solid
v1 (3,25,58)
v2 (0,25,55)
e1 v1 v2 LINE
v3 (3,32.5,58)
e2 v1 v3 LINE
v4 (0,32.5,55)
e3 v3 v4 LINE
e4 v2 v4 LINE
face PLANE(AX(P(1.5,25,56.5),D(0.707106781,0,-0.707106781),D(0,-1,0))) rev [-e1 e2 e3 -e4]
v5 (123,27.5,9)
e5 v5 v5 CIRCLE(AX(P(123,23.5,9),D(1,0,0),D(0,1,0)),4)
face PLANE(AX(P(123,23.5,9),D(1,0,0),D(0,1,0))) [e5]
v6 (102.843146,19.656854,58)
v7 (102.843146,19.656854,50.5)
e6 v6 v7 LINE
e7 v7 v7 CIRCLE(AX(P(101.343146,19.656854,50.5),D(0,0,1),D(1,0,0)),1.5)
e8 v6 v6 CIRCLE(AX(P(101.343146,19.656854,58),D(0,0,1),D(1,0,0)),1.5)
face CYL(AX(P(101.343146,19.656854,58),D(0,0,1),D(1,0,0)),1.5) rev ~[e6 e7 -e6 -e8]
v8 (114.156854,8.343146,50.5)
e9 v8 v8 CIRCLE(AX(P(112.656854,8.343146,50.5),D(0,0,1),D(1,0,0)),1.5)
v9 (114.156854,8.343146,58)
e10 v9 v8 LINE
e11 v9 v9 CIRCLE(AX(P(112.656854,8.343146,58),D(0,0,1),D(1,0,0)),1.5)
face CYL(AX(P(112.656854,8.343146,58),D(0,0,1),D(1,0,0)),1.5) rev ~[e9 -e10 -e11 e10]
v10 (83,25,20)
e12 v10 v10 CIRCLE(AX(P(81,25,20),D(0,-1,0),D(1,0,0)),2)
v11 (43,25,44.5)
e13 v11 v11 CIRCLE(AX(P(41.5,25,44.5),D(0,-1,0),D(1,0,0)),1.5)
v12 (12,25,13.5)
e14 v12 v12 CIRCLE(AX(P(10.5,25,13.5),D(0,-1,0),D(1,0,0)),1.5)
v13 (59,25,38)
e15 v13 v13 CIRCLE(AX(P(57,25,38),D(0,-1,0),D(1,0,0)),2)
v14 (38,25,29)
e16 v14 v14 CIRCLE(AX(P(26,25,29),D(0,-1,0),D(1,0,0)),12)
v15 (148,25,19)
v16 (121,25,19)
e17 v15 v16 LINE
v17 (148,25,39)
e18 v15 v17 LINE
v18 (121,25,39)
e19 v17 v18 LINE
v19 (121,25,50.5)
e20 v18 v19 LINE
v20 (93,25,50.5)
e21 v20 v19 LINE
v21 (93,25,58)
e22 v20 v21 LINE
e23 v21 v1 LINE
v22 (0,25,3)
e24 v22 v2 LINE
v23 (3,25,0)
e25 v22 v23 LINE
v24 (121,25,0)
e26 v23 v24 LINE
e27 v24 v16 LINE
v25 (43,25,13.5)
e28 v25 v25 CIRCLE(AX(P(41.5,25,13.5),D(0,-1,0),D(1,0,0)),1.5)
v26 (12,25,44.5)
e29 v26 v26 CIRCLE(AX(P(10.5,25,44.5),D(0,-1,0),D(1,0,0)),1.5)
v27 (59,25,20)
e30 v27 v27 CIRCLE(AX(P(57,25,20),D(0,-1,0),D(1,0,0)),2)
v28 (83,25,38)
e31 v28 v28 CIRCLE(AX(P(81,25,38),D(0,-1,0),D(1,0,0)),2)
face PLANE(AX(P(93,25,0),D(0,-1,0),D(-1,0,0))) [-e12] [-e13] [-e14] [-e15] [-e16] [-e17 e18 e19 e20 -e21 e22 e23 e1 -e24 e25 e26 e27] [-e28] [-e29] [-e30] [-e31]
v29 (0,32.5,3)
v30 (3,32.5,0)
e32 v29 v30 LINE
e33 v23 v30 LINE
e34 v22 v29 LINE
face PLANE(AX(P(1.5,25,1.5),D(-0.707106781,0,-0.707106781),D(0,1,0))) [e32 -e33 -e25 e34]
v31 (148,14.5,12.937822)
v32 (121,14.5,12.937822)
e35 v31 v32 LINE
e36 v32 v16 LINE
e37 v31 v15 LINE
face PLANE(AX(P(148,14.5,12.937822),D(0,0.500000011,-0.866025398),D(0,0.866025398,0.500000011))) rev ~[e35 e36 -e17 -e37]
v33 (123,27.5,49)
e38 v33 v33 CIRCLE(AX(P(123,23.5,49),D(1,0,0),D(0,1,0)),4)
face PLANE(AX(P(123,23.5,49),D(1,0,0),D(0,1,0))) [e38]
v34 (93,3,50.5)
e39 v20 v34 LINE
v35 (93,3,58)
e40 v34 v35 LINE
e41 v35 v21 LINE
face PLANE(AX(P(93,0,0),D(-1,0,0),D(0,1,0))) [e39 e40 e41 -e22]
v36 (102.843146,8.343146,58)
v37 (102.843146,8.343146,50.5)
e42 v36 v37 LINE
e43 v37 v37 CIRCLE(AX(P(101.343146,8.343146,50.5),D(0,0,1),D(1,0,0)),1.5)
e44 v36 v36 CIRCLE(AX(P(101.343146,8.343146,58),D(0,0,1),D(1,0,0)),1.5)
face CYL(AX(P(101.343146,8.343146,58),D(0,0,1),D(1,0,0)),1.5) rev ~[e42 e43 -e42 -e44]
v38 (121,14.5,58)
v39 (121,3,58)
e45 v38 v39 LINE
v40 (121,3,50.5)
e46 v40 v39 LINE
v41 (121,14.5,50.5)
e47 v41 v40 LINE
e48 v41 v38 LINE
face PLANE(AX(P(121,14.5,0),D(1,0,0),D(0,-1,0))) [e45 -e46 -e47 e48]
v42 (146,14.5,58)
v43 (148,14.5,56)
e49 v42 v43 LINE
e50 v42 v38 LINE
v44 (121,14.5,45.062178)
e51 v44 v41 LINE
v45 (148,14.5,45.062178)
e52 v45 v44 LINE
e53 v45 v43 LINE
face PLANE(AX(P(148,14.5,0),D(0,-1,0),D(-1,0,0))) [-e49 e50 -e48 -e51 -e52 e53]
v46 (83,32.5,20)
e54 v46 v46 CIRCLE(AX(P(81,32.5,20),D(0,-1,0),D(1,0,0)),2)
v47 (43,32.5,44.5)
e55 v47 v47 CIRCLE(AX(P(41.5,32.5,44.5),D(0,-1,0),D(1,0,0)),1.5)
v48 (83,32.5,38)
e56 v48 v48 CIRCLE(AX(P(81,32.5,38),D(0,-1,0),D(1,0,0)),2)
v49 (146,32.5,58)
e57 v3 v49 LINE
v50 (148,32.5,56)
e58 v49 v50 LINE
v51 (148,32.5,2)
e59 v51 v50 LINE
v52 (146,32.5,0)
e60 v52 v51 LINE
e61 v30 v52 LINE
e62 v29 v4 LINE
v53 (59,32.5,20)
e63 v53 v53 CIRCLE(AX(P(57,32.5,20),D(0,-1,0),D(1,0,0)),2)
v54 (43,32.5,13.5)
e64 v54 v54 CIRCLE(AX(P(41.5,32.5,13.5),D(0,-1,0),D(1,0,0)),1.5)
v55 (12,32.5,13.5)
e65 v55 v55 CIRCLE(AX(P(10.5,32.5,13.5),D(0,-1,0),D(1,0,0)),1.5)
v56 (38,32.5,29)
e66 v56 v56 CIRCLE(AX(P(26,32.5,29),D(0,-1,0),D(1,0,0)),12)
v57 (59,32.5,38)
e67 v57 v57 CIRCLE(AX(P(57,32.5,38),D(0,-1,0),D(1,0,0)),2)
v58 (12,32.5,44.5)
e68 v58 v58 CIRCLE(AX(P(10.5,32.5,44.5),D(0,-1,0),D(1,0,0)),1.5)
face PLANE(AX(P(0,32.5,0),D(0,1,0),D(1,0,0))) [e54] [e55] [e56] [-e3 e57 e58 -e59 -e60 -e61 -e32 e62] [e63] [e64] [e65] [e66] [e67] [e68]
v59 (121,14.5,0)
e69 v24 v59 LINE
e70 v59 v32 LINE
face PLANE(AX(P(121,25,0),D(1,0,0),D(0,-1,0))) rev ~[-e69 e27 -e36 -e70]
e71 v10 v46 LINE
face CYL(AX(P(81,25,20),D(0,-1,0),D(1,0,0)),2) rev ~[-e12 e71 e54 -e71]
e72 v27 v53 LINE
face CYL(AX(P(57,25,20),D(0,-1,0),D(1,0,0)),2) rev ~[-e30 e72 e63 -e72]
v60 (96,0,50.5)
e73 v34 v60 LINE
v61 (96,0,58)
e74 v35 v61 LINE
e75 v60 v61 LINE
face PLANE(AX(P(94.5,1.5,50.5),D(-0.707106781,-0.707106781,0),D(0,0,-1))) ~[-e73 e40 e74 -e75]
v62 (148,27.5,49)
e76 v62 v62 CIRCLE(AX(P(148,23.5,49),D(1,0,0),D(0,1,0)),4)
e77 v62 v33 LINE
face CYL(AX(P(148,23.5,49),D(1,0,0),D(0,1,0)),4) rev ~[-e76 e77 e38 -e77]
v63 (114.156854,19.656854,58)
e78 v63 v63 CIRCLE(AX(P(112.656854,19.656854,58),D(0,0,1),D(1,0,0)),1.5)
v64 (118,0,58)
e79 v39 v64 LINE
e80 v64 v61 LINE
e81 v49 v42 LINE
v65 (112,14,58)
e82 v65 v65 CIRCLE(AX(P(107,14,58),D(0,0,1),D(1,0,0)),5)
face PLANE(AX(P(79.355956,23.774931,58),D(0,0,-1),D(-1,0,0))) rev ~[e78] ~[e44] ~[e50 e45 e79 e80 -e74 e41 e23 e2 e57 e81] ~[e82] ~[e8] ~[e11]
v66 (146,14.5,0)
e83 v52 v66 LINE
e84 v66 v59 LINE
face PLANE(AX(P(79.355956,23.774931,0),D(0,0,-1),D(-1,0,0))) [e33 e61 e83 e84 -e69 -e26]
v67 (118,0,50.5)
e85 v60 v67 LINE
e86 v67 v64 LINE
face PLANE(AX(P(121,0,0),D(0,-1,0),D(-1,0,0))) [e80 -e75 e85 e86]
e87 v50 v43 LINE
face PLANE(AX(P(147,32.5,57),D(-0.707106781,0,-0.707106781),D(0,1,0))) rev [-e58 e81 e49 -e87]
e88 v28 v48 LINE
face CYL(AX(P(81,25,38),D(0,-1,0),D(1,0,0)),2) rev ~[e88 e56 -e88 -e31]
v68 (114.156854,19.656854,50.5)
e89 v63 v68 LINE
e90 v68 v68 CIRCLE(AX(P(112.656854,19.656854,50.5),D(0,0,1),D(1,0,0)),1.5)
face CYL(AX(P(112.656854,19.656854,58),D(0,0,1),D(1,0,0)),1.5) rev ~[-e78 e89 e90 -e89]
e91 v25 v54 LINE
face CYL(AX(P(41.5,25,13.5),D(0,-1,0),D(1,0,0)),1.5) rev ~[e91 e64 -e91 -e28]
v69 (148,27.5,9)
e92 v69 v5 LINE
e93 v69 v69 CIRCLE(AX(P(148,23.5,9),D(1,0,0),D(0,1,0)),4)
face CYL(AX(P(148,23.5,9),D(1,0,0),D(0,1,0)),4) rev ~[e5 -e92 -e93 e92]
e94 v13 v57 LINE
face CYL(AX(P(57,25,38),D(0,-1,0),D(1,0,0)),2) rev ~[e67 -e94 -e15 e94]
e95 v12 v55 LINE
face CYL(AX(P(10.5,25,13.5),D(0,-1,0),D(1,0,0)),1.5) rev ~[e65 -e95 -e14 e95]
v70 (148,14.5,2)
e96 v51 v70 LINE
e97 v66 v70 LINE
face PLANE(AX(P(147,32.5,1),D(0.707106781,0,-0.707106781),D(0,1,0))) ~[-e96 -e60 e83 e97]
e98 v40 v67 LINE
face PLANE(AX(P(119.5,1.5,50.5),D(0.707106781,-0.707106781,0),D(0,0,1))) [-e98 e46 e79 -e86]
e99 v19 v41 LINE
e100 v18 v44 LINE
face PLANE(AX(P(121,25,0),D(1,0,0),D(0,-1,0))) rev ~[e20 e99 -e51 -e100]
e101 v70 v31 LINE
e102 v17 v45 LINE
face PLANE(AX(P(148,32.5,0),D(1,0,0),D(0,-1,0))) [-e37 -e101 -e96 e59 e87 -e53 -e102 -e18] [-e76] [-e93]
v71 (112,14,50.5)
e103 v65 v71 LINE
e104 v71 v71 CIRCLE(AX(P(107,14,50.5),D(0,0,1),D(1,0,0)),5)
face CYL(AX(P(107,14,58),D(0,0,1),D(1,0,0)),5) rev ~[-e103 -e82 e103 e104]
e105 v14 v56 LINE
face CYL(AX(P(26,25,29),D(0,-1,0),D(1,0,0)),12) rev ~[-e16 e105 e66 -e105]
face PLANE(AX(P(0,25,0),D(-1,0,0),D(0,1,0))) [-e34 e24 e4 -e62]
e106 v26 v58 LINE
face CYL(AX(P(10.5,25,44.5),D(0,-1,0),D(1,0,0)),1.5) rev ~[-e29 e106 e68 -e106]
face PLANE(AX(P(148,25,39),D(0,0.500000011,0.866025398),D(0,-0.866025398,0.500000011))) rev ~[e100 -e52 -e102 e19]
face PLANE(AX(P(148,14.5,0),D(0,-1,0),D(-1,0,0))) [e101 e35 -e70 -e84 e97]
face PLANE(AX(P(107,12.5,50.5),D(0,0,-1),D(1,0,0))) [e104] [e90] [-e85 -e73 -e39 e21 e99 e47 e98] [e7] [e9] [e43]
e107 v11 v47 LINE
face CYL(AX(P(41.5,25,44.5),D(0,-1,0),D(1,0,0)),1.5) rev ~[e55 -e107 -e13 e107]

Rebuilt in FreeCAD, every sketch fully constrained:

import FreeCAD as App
import Part
import Sketcher
Q = App.Units.Quantity


def edges_at(feature, points):
    """Names of the edges that pass closest to the given points."""
    edges = feature.Shape.Edges
    near = lambda p: min(range(len(edges)), key=lambda i: edges[i].distToShape(Part.Vertex(*p))[0])
    return sorted({f"Edge{near(p) + 1}" for p in points})


def add_polygon(sketch, points):
    """Adds a closed chain of lines whose ends are joined by coincident constraints."""
    first, n = sketch.GeometryCount, len(points)
    for a, b in zip(points, points[1:] + points[:1]):
        sketch.addGeometry(Part.LineSegment(App.Vector(*a, 0), App.Vector(*b, 0)), False)
    for i in range(n):
        sketch.addConstraint(Sketcher.Constraint("Coincident", first + i, 2, first + (i + 1) % n, 1))

doc = App.newDocument("Part")
body = doc.addObject("PartDesign::Body", "Body")

# Sketch on XY plane
sketch1 = body.newObject("Sketcher::SketchObject", "Sketch")
sketch1.AttachmentSupport = (doc.getObject("XY_Plane"), [""])
sketch1.MapMode = "FlatFace"
add_polygon(sketch1, [(0, 32), (0, 25), (93, 25), (93, 0), (121, 0), (121, 14), (148, 14), (148, 32)])  # lines 0-7
sketch1.addConstraint(Sketcher.Constraint("Vertical", 0))
sketch1.addConstraint(Sketcher.Constraint("Horizontal", 1))
sketch1.addConstraint(Sketcher.Constraint("Vertical", 2))
sketch1.addConstraint(Sketcher.Constraint("Horizontal", 3))
sketch1.addConstraint(Sketcher.Constraint("Vertical", 4))
sketch1.addConstraint(Sketcher.Constraint("Horizontal", 5))
sketch1.addConstraint(Sketcher.Constraint("Vertical", 6))
sketch1.addConstraint(Sketcher.Constraint("Horizontal", 7))
sketch1.addConstraint(Sketcher.Constraint("PointOnObject", 0, 2, -2))
sketch1.addConstraint(Sketcher.Constraint("PointOnObject", 2, 2, -1))
sketch1.addConstraint(Sketcher.Constraint("DistanceX", 1, 1, 1, 2, Q("93 mm")))
sketch1.addConstraint(Sketcher.Constraint("DistanceX", 3, 1, 3, 2, Q("28 mm")))
sketch1.addConstraint(Sketcher.Constraint("DistanceX", 5, 1, 5, 2, Q("27 mm")))
sketch1.addConstraint(Sketcher.Constraint("DistanceY", 2, 2, 2, 1, Q("25 mm")))
sketch1.addConstraint(Sketcher.Constraint("DistanceY", 6, 1, 6, 2, Q("18 mm")))
sketch1.addConstraint(Sketcher.Constraint("DistanceY", 0, 2, 0, 1, Q("7.5 mm")))
pad1 = body.newObject("PartDesign::Pad", "Pad")
pad1.Profile = sketch1
pad1.Length = 58

# Sketch on YZ plane
sketch2 = body.newObject("Sketcher::SketchObject", "Sketch001")
sketch2.AttachmentSupport = (doc.getObject("YZ_Plane"), [""])
sketch2.MapMode = "FlatFace"
sketch2.AttachmentOffset = App.Placement(App.Vector(0, 0, 148), App.Rotation())
sketch2.addGeometry(Part.Circle(App.Vector(23.5, 49, 0), App.Vector(0, 0, 1), 4), False)
sketch2.addGeometry(Part.Circle(App.Vector(23.5, 9, 0), App.Vector(0, 0, 1), 4), False)
sketch2.addConstraint(Sketcher.Constraint("Equal", 0, 1))
sketch2.addConstraint(Sketcher.Constraint("Vertical", 0, 3, 1, 3))
sketch2.addConstraint(Sketcher.Constraint("Diameter", 0, Q("8 mm")))
sketch2.addConstraint(Sketcher.Constraint("DistanceY", -1, 1, 0, 3, Q("49 mm")))
sketch2.addConstraint(Sketcher.Constraint("DistanceY", -1, 1, 1, 3, Q("9 mm")))
sketch2.addConstraint(Sketcher.Constraint("DistanceX", -1, 1, 0, 3, Q("23.5 mm")))
pocket1 = body.newObject("PartDesign::Pocket", "Pocket")
pocket1.Profile = sketch2
pocket1.Length = 25

# Sketch on XY plane
sketch3 = body.newObject("Sketcher::SketchObject", "Sketch002")
sketch3.AttachmentSupport = (doc.getObject("XY_Plane"), [""])
sketch3.MapMode = "FlatFace"
add_polygon(sketch3, [(93, 0), (93, 25), (121, 25), (121, 0)])  # lines 0-3
sketch3.addConstraint(Sketcher.Constraint("Vertical", 0))
sketch3.addConstraint(Sketcher.Constraint("Horizontal", 1))
sketch3.addConstraint(Sketcher.Constraint("Vertical", 2))
sketch3.addConstraint(Sketcher.Constraint("Horizontal", 3))
sketch3.addConstraint(Sketcher.Constraint("PointOnObject", 2, 2, -1))
sketch3.addConstraint(Sketcher.Constraint("DistanceX", 1, 1, 1, 2, Q("28 mm")))
sketch3.addConstraint(Sketcher.Constraint("DistanceY", 0, 1, 0, 2, Q("25 mm")))
sketch3.addConstraint(Sketcher.Constraint("DistanceX", -1, 1, 0, 2, Q("93 mm")))
pocket2 = body.newObject("PartDesign::Pocket", "Pocket001")
pocket2.Profile = sketch3
pocket2.Length = 50.5
pocket2.Reversed = True

# Sketch on YZ plane
sketch4 = body.newObject("Sketcher::SketchObject", "Sketch003")
sketch4.AttachmentSupport = (doc.getObject("YZ_Plane"), [""])
sketch4.MapMode = "FlatFace"
sketch4.AttachmentOffset = App.Placement(App.Vector(0, 0, 148), App.Rotation())
add_polygon(sketch4, [(14, 45), (14, 13), (25, 19), (25, 39)])  # lines 0-3
sketch4.addConstraint(Sketcher.Constraint("Vertical", 0))
sketch4.addConstraint(Sketcher.Constraint("Vertical", 2))
sketch4.addConstraint(Sketcher.Constraint("Equal", 1, 3))
sketch4.addConstraint(Sketcher.Constraint("DistanceY", 2, 1, 2, 2, Q("20 mm")))
sketch4.addConstraint(Sketcher.Constraint("Angle", 1, Q("30.000001 deg")))
sketch4.addConstraint(Sketcher.Constraint("DistanceX", -1, 1, 1, 2, Q("25 mm")))
sketch4.addConstraint(Sketcher.Constraint("DistanceY", -1, 1, 1, 2, Q("19 mm")))
sketch4.addConstraint(Sketcher.Constraint("DistanceX", -1, 1, 0, 2, Q("14.5 mm")))
pocket3 = body.newObject("PartDesign::Pocket", "Pocket002")
pocket3.Profile = sketch4
pocket3.Length = 27

# Sketch on XY plane
sketch5 = body.newObject("Sketcher::SketchObject", "Sketch004")
sketch5.AttachmentSupport = (doc.getObject("XY_Plane"), [""])
sketch5.MapMode = "FlatFace"
sketch5.AttachmentOffset = App.Placement(App.Vector(0, 0, 58), App.Rotation())
sketch5.addGeometry(Part.Circle(App.Vector(107, 14, 0), App.Vector(0, 0, 1), 5), False)
sketch5.addGeometry(Part.Circle(App.Vector(101.3, 19.7, 0), App.Vector(0, 0, 1), 1.5), False)
sketch5.addGeometry(Part.Circle(App.Vector(112.7, 19.7, 0), App.Vector(0, 0, 1), 1.5), False)
sketch5.addGeometry(Part.Circle(App.Vector(112.7, 8.3, 0), App.Vector(0, 0, 1), 1.5), False)
sketch5.addGeometry(Part.Circle(App.Vector(101.3, 8.3, 0), App.Vector(0, 0, 1), 1.5), False)
sketch5.addConstraint(Sketcher.Constraint("Equal", 1, 2))
sketch5.addConstraint(Sketcher.Constraint("Equal", 2, 3))
sketch5.addConstraint(Sketcher.Constraint("Equal", 3, 4))
sketch5.addConstraint(Sketcher.Constraint("Horizontal", 1, 3, 2, 3))
sketch5.addConstraint(Sketcher.Constraint("Horizontal", 3, 3, 4, 3))
sketch5.addConstraint(Sketcher.Constraint("Vertical", 2, 3, 3, 3))
sketch5.addConstraint(Sketcher.Constraint("Vertical", 1, 3, 4, 3))
sketch5.addConstraint(Sketcher.Constraint("Diameter", 0, Q("10 mm")))
sketch5.addConstraint(Sketcher.Constraint("Diameter", 1, Q("3 mm")))
sketch5.addConstraint(Sketcher.Constraint("DistanceX", -1, 1, 0, 3, Q("107 mm")))
sketch5.addConstraint(Sketcher.Constraint("DistanceY", -1, 1, 0, 3, Q("14 mm")))
sketch5.addConstraint(Sketcher.Constraint("DistanceX", -1, 1, 1, 3, Q("101.343146 mm")))
sketch5.addConstraint(Sketcher.Constraint("DistanceY", -1, 1, 1, 3, Q("19.656854 mm")))
sketch5.addConstraint(Sketcher.Constraint("DistanceX", -1, 1, 2, 3, Q("112.656854 mm")))
sketch5.addConstraint(Sketcher.Constraint("DistanceY", -1, 1, 3, 3, Q("8.343146 mm")))
pocket4 = body.newObject("PartDesign::Pocket", "Pocket003")
pocket4.Profile = sketch5
pocket4.Type = "ThroughAll"

# Sketch on XZ plane
sketch6 = body.newObject("Sketcher::SketchObject", "Sketch005")
sketch6.AttachmentSupport = (doc.getObject("XZ_Plane"), [""])
sketch6.MapMode = "FlatFace"
sketch6.AttachmentOffset = App.Placement(App.Vector(0, 0, -25), App.Rotation())
sketch6.addGeometry(Part.Circle(App.Vector(26, 29, 0), App.Vector(0, 0, 1), 12), False)
sketch6.addGeometry(Part.Circle(App.Vector(10.5, 44.5, 0), App.Vector(0, 0, 1), 1.5), False)
sketch6.addGeometry(Part.Circle(App.Vector(41.5, 44.5, 0), App.Vector(0, 0, 1), 1.5), False)
sketch6.addGeometry(Part.Circle(App.Vector(10.5, 13.5, 0), App.Vector(0, 0, 1), 1.5), False)
sketch6.addGeometry(Part.Circle(App.Vector(41.5, 13.5, 0), App.Vector(0, 0, 1), 1.5), False)
sketch6.addGeometry(Part.Circle(App.Vector(57, 38, 0), App.Vector(0, 0, 1), 2), False)
sketch6.addGeometry(Part.Circle(App.Vector(81, 38, 0), App.Vector(0, 0, 1), 2), False)
sketch6.addGeometry(Part.Circle(App.Vector(81, 20, 0), App.Vector(0, 0, 1), 2), False)
sketch6.addGeometry(Part.Circle(App.Vector(57, 20, 0), App.Vector(0, 0, 1), 2), False)
sketch6.addConstraint(Sketcher.Constraint("Equal", 1, 2))
sketch6.addConstraint(Sketcher.Constraint("Equal", 2, 3))
sketch6.addConstraint(Sketcher.Constraint("Equal", 3, 4))
sketch6.addConstraint(Sketcher.Constraint("Equal", 5, 6))
sketch6.addConstraint(Sketcher.Constraint("Equal", 6, 7))
sketch6.addConstraint(Sketcher.Constraint("Equal", 7, 8))
sketch6.addConstraint(Sketcher.Constraint("Horizontal", 1, 3, 2, 3))
sketch6.addConstraint(Sketcher.Constraint("Horizontal", 3, 3, 4, 3))
sketch6.addConstraint(Sketcher.Constraint("Horizontal", 5, 3, 6, 3))
sketch6.addConstraint(Sketcher.Constraint("Horizontal", 7, 3, 8, 3))
sketch6.addConstraint(Sketcher.Constraint("Vertical", 1, 3, 3, 3))
sketch6.addConstraint(Sketcher.Constraint("Vertical", 2, 3, 4, 3))
sketch6.addConstraint(Sketcher.Constraint("Vertical", 6, 3, 7, 3))
sketch6.addConstraint(Sketcher.Constraint("Vertical", 5, 3, 8, 3))
sketch6.addConstraint(Sketcher.Constraint("Diameter", 0, Q("24 mm")))
sketch6.addConstraint(Sketcher.Constraint("Diameter", 1, Q("3 mm")))
sketch6.addConstraint(Sketcher.Constraint("Diameter", 5, Q("4 mm")))
sketch6.addConstraint(Sketcher.Constraint("DistanceX", -1, 1, 0, 3, Q("26 mm")))
sketch6.addConstraint(Sketcher.Constraint("DistanceY", -1, 1, 0, 3, Q("29 mm")))
sketch6.addConstraint(Sketcher.Constraint("DistanceX", -1, 1, 5, 3, Q("57 mm")))
sketch6.addConstraint(Sketcher.Constraint("DistanceY", -1, 1, 5, 3, Q("38 mm")))
sketch6.addConstraint(Sketcher.Constraint("DistanceX", -1, 1, 6, 3, Q("81 mm")))
sketch6.addConstraint(Sketcher.Constraint("DistanceY", -1, 1, 7, 3, Q("20 mm")))
sketch6.addConstraint(Sketcher.Constraint("DistanceX", 1, 3, 2, 3, Q("31 mm")))
sketch6.addConstraint(Sketcher.Constraint("DistanceY", 3, 3, 1, 3, Q("31 mm")))
sketch6.addConstraint(Sketcher.Constraint("DistanceX", -1, 1, 1, 3, Q("10.5 mm")))
sketch6.addConstraint(Sketcher.Constraint("DistanceY", -1, 1, 1, 3, Q("44.5 mm")))
pocket5 = body.newObject("PartDesign::Pocket", "Pocket004")
pocket5.Profile = sketch6
pocket5.Type = "ThroughAll"
doc.recompute()

chamfer = body.newObject("PartDesign::Chamfer", "Chamfer")
chamfer.Base = (pocket5, edges_at(pocket5, [(148, 23.5, 58), (148, 23.5, 0)]))
chamfer.Size = 2
doc.recompute()

chamfer2 = body.newObject("PartDesign::Chamfer", "Chamfer001")
chamfer2.Base = (chamfer, edges_at(chamfer, [(121, 0, 54.25), (93, 0, 54.25)]))
chamfer2.Size = 3
doc.recompute()

chamfer3 = body.newObject("PartDesign::Chamfer", "Chamfer002")
chamfer3.Base = (chamfer2, edges_at(chamfer2, [(0, 28.75, 58), (0, 28.75, 0)]))
chamfer3.Size = 3

doc.recompute()
